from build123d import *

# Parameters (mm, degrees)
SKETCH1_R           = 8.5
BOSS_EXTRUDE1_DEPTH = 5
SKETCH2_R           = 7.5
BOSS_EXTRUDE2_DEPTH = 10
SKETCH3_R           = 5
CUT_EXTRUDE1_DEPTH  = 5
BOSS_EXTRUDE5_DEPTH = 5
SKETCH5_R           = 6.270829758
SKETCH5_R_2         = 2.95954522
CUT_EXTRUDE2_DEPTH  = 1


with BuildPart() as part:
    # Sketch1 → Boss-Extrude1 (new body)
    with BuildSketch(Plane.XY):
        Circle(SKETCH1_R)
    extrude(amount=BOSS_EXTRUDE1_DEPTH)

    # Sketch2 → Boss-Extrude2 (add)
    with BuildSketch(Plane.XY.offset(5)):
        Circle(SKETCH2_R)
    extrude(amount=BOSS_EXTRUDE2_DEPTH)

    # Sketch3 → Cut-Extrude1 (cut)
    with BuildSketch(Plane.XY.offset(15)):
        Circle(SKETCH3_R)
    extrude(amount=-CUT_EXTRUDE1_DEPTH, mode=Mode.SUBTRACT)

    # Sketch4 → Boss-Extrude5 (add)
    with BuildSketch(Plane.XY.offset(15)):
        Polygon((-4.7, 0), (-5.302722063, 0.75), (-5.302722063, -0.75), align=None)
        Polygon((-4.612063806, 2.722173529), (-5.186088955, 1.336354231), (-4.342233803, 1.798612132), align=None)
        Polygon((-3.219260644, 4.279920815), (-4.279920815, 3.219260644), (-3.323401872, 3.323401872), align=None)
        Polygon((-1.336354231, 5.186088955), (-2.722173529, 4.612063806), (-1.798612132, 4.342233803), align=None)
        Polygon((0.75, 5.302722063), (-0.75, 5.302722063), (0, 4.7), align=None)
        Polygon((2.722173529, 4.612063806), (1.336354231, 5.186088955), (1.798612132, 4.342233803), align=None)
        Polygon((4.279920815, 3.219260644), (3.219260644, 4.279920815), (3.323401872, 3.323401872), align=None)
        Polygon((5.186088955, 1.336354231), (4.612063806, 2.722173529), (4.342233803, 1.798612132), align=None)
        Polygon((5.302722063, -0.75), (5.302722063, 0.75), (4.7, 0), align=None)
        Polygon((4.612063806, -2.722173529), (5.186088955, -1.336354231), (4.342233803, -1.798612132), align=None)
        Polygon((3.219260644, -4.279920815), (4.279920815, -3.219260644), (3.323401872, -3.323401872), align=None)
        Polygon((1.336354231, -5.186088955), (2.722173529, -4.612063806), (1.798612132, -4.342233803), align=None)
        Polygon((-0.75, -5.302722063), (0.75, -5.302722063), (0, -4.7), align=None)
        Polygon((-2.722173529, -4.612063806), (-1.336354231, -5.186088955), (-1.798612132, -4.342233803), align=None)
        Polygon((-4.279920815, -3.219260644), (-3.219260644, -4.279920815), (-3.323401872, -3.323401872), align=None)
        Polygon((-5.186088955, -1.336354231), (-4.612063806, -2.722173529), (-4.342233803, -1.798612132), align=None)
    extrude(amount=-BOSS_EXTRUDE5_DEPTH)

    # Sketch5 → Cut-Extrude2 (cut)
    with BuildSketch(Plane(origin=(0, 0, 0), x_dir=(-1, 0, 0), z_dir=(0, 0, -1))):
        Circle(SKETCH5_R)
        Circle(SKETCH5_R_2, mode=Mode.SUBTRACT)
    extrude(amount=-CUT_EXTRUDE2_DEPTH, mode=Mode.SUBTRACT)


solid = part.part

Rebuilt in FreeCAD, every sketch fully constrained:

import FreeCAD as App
import Part
import Sketcher
Q = App.Units.Quantity

doc = App.newDocument("Part")
body = doc.addObject("PartDesign::Body", "Body")

# Sketch on XY plane
sketch1 = doc.addObject("Sketcher::SketchObject", "Sketch")
body.addObject(sketch1)
sketch1.AttachmentSupport = (doc.XY_Plane, [""])
sketch1.MapMode = "FlatFace"
sketch1.addGeometry(Part.Circle(App.Vector(0, 0, 0), App.Vector(0, 0, 1), 8), False)
sketch1.addConstraint([
    Sketcher.Constraint("Coincident", 0, 3, -1, 1),
    Sketcher.Constraint("Diameter", 0, 17.0),
])
pad1 = doc.addObject("PartDesign::Pad", "Pad")
body.addObject(pad1)
pad1.Profile = sketch1
pad1.Length = 5

# Sketch on XY plane
sketch2 = doc.addObject("Sketcher::SketchObject", "Sketch001")
body.addObject(sketch2)
sketch2.AttachmentSupport = (doc.XY_Plane, [""])
sketch2.MapMode = "FlatFace"
sketch2.AttachmentOffset = App.Placement(App.Vector(0, 0, 5), App.Rotation())
sketch2.addGeometry(Part.Circle(App.Vector(0, 0, 0), App.Vector(0, 0, 1), 8), False)
sketch2.addConstraint([
    Sketcher.Constraint("Coincident", 0, 3, -1, 1),
    Sketcher.Constraint("Diameter", 0, 15.0),
])
pad2 = doc.addObject("PartDesign::Pad", "Pad001")
body.addObject(pad2)
pad2.Profile = sketch2
pad2.Length = 10

# Sketch on XY plane
sketch3 = doc.addObject("Sketcher::SketchObject", "Sketch002")
body.addObject(sketch3)
sketch3.AttachmentSupport = (doc.XY_Plane, [""])
sketch3.MapMode = "FlatFace"
sketch3.AttachmentOffset = App.Placement(App.Vector(0, 0, 15), App.Rotation())
sketch3.addGeometry(Part.Circle(App.Vector(0, 0, 0), App.Vector(0, 0, 1), 5), False)
sketch3.addConstraint([
    Sketcher.Constraint("Coincident", 0, 3, -1, 1),
    Sketcher.Constraint("Diameter", 0, 10.0),
])
pocket1 = doc.addObject("PartDesign::Pocket", "Pocket")
body.addObject(pocket1)
pocket1.Profile = sketch3
pocket1.Length = 5

# Sketch on XY plane
sketch4 = doc.addObject("Sketcher::SketchObject", "Sketch003")
body.addObject(sketch4)
sketch4.AttachmentSupport = (doc.XY_Plane, [""])
sketch4.MapMode = "FlatFace"
sketch4.AttachmentOffset = App.Placement(App.Vector(0, 0, 15), App.Rotation())
sketch4.addGeometry([
    Part.LineSegment(App.Vector(-4.7, 0, 0), App.Vector(-5.3, 0.8, 0)),  # 0
    Part.LineSegment(App.Vector(-5.3, 0.8, 0), App.Vector(-5.3, -0.8, 0)),  # 1
    Part.LineSegment(App.Vector(-5.3, -0.8, 0), App.Vector(-4.7, 0, 0)),  # 2
    Part.LineSegment(App.Vector(-4.6, 2.7, 0), App.Vector(-5.2, 1.3, 0)),  # 3
    Part.LineSegment(App.Vector(-5.2, 1.3, 0), App.Vector(-4.3, 1.8, 0)),  # 4
    Part.LineSegment(App.Vector(-4.3, 1.8, 0), App.Vector(-4.6, 2.7, 0)),  # 5
    Part.LineSegment(App.Vector(-3.2, 4.3, 0), App.Vector(-4.3, 3.2, 0)),  # 6
    Part.LineSegment(App.Vector(-4.3, 3.2, 0), App.Vector(-3.3, 3.3, 0)),  # 7
    Part.LineSegment(App.Vector(-3.3, 3.3, 0), App.Vector(-3.2, 4.3, 0)),  # 8
    Part.LineSegment(App.Vector(-1.3, 5.2, 0), App.Vector(-2.7, 4.6, 0)),  # 9
    Part.LineSegment(App.Vector(-2.7, 4.6, 0), App.Vector(-1.8, 4.3, 0)),  # 10
    Part.LineSegment(App.Vector(-1.8, 4.3, 0), App.Vector(-1.3, 5.2, 0)),  # 11
    Part.LineSegment(App.Vector(0.8, 5.3, 0), App.Vector(-0.8, 5.3, 0)),  # 12
    Part.LineSegment(App.Vector(-0.8, 5.3, 0), App.Vector(0, 4.7, 0)),  # 13
    Part.LineSegment(App.Vector(0, 4.7, 0), App.Vector(0.8, 5.3, 0)),  # 14
    Part.LineSegment(App.Vector(2.7, 4.6, 0), App.Vector(1.3, 5.2, 0)),  # 15
    Part.LineSegment(App.Vector(1.3, 5.2, 0), App.Vector(1.8, 4.3, 0)),  # 16
    Part.LineSegment(App.Vector(1.8, 4.3, 0), App.Vector(2.7, 4.6, 0)),  # 17
    Part.LineSegment(App.Vector(4.3, 3.2, 0), App.Vector(3.2, 4.3, 0)),  # 18
    Part.LineSegment(App.Vector(3.2, 4.3, 0), App.Vector(3.3, 3.3, 0)),  # 19
    Part.LineSegment(App.Vector(3.3, 3.3, 0), App.Vector(4.3, 3.2, 0)),  # 20
    Part.LineSegment(App.Vector(5.2, 1.3, 0), App.Vector(4.6, 2.7, 0)),  # 21
    Part.LineSegment(App.Vector(4.6, 2.7, 0), App.Vector(4.3, 1.8, 0)),  # 22
    Part.LineSegment(App.Vector(4.3, 1.8, 0), App.Vector(5.2, 1.3, 0)),  # 23
    Part.LineSegment(App.Vector(5.3, -0.8, 0), App.Vector(5.3, 0.8, 0)),  # 24
    Part.LineSegment(App.Vector(5.3, 0.8, 0), App.Vector(4.7, 0, 0)),  # 25
    Part.LineSegment(App.Vector(4.7, 0, 0), App.Vector(5.3, -0.8, 0)),  # 26
    Part.LineSegment(App.Vector(4.6, -2.7, 0), App.Vector(5.2, -1.3, 0)),  # 27
    Part.LineSegment(App.Vector(5.2, -1.3, 0), App.Vector(4.3, -1.8, 0)),  # 28
    Part.LineSegment(App.Vector(4.3, -1.8, 0), App.Vector(4.6, -2.7, 0)),  # 29
    Part.LineSegment(App.Vector(3.2, -4.3, 0), App.Vector(4.3, -3.2, 0)),  # 30
    Part.LineSegment(App.Vector(4.3, -3.2, 0), App.Vector(3.3, -3.3, 0)),  # 31
    Part.LineSegment(App.Vector(3.3, -3.3, 0), App.Vector(3.2, -4.3, 0)),  # 32
    Part.LineSegment(App.Vector(1.3, -5.2, 0), App.Vector(2.7, -4.6, 0)),  # 33
    Part.LineSegment(App.Vector(2.7, -4.6, 0), App.Vector(1.8, -4.3, 0)),  # 34
    Part.LineSegment(App.Vector(1.8, -4.3, 0), App.Vector(1.3, -5.2, 0)),  # 35
    Part.LineSegment(App.Vector(-0.8, -5.3, 0), App.Vector(0.8, -5.3, 0)),  # 36
    Part.LineSegment(App.Vector(0.8, -5.3, 0), App.Vector(0, -4.7, 0)),  # 37
    Part.LineSegment(App.Vector(0, -4.7, 0), App.Vector(-0.8, -5.3, 0)),  # 38
    Part.LineSegment(App.Vector(-2.7, -4.6, 0), App.Vector(-1.3, -5.2, 0)),  # 39
    Part.LineSegment(App.Vector(-1.3, -5.2, 0), App.Vector(-1.8, -4.3, 0)),  # 40
    Part.LineSegment(App.Vector(-1.8, -4.3, 0), App.Vector(-2.7, -4.6, 0)),  # 41
    Part.LineSegment(App.Vector(-4.3, -3.2, 0), App.Vector(-3.2, -4.3, 0)),  # 42
    Part.LineSegment(App.Vector(-3.2, -4.3, 0), App.Vector(-3.3, -3.3, 0)),  # 43
    Part.LineSegment(App.Vector(-3.3, -3.3, 0), App.Vector(-4.3, -3.2, 0)),  # 44
    Part.LineSegment(App.Vector(-5.2, -1.3, 0), App.Vector(-4.6, -2.7, 0)),  # 45
    Part.LineSegment(App.Vector(-4.6, -2.7, 0), App.Vector(-4.3, -1.8, 0)),  # 46
    Part.LineSegment(App.Vector(-4.3, -1.8, 0), App.Vector(-5.2, -1.3, 0)),  # 47
], False)
sketch4.addConstraint([
    Sketcher.Constraint("Coincident", 0, 2, 1, 1),
    Sketcher.Constraint("Coincident", 1, 2, 2, 1),
    Sketcher.Constraint("Coincident", 2, 2, 0, 1),
    Sketcher.Constraint("Coincident", 3, 2, 4, 1),
    Sketcher.Constraint("Coincident", 4, 2, 5, 1),
    Sketcher.Constraint("Coincident", 5, 2, 3, 1),
    Sketcher.Constraint("Coincident", 6, 2, 7, 1),
    Sketcher.Constraint("Coincident", 7, 2, 8, 1),
    Sketcher.Constraint("Coincident", 8, 2, 6, 1),
    Sketcher.Constraint("Coincident", 9, 2, 10, 1),
    Sketcher.Constraint("Coincident", 10, 2, 11, 1),
    Sketcher.Constraint("Coincident", 11, 2, 9, 1),
    Sketcher.Constraint("Coincident", 12, 2, 13, 1),
    Sketcher.Constraint("Coincident", 13, 2, 14, 1),
    Sketcher.Constraint("Coincident", 14, 2, 12, 1),
    Sketcher.Constraint("Coincident", 15, 2, 16, 1),
    Sketcher.Constraint("Coincident", 16, 2, 17, 1),
    Sketcher.Constraint("Coincident", 17, 2, 15, 1),
    Sketcher.Constraint("Coincident", 18, 2, 19, 1),
    Sketcher.Constraint("Coincident", 19, 2, 20, 1),
    Sketcher.Constraint("Coincident", 20, 2, 18, 1),
    Sketcher.Constraint("Coincident", 21, 2, 22, 1),
    Sketcher.Constraint("Coincident", 22, 2, 23, 1),
    Sketcher.Constraint("Coincident", 23, 2, 21, 1),
    Sketcher.Constraint("Coincident", 24, 2, 25, 1),
    Sketcher.Constraint("Coincident", 25, 2, 26, 1),
    Sketcher.Constraint("Coincident", 26, 2, 24, 1),
    Sketcher.Constraint("Coincident", 27, 2, 28, 1),
    Sketcher.Constraint("Coincident", 28, 2, 29, 1),
    Sketcher.Constraint("Coincident", 29, 2, 27, 1),
    Sketcher.Constraint("Coincident", 30, 2, 31, 1),
    Sketcher.Constraint("Coincident", 31, 2, 32, 1),
    Sketcher.Constraint("Coincident", 32, 2, 30, 1),
    Sketcher.Constraint("Coincident", 33, 2, 34, 1),
    Sketcher.Constraint("Coincident", 34, 2, 35, 1),
    Sketcher.Constraint("Coincident", 35, 2, 33, 1),
    Sketcher.Constraint("Coincident", 36, 2, 37, 1),
    Sketcher.Constraint("Coincident", 37, 2, 38, 1),
    Sketcher.Constraint("Coincident", 38, 2, 36, 1),
    Sketcher.Constraint("Coincident", 39, 2, 40, 1),
    Sketcher.Constraint("Coincident", 40, 2, 41, 1),
    Sketcher.Constraint("Coincident", 41, 2, 39, 1),
    Sketcher.Constraint("Coincident", 42, 2, 43, 1),
    Sketcher.Constraint("Coincident", 43, 2, 44, 1),
    Sketcher.Constraint("Coincident", 44, 2, 42, 1),
    Sketcher.Constraint("Coincident", 45, 2, 46, 1),
    Sketcher.Constraint("Coincident", 46, 2, 47, 1),
    Sketcher.Constraint("Coincident", 47, 2, 45, 1),
    Sketcher.Constraint("Vertical", 1),
    Sketcher.Constraint("Horizontal", 12),
    Sketcher.Constraint("Vertical", 24),
    Sketcher.Constraint("Horizontal", 36),
    Sketcher.Constraint("Symmetric", 1, 2, 24, 2, -1, 1),
    Sketcher.Constraint("Symmetric", 2, 2, 25, 2, -1, 1),
    Sketcher.Constraint("Symmetric", 3, 2, 27, 2, -1, 1),
    Sketcher.Constraint("Symmetric", 4, 2, 28, 2, -1, 1),
    Sketcher.Constraint("Symmetric", 5, 2, 29, 2, -1, 1),
    Sketcher.Constraint("Symmetric", 6, 2, 30, 2, -1, 1),
    Sketcher.Constraint("Symmetric", 7, 2, 31, 2, -1, 1),
    Sketcher.Constraint("Symmetric", 8, 2, 32, 2, -1, 1),
    Sketcher.Constraint("Symmetric", 9, 2, 33, 2, -1, 1),
    Sketcher.Constraint("Symmetric", 10, 2, 34, 2, -1, 1),
    Sketcher.Constraint("Symmetric", 11, 2, 35, 2, -1, 1),
    Sketcher.Constraint("Symmetric", 12, 2, 36, 2, -1, 1),
    Sketcher.Constraint("Symmetric", 13, 2, 37, 2, -1, 1),
    Sketcher.Constraint("Symmetric", 15, 2, 39, 2, -1, 1),
    Sketcher.Constraint("Symmetric", 16, 2, 40, 2, -1, 1),
    Sketcher.Constraint("Symmetric", 17, 2, 41, 2, -1, 1),
    Sketcher.Constraint("Symmetric", 18, 2, 42, 2, -1, 1),
    Sketcher.Constraint("Symmetric", 19, 2, 43, 2, -1, 1),
    Sketcher.Constraint("Symmetric", 20, 2, 44, 2, -1, 1),
    Sketcher.Constraint("Symmetric", 21, 2, 45, 2, -1, 1),
    Sketcher.Constraint("Symmetric", 22, 2, 46, 2, -1, 1),
    Sketcher.Constraint("Symmetric", 23, 2, 47, 2, -1, 1),
    Sketcher.Constraint("Symmetric", 11, 2, 15, 2, -2),
    Sketcher.Constraint("Symmetric", 10, 2, 16, 2, -2),
    Sketcher.Constraint("Symmetric", 9, 2, 17, 2, -2),
    Sketcher.Constraint("Symmetric", 8, 2, 18, 2, -2),
    Sketcher.Constraint("Symmetric", 7, 2, 19, 2, -2),
    Sketcher.Constraint("Symmetric", 6, 2, 20, 2, -2),
    Sketcher.Constraint("Symmetric", 5, 2, 21, 2, -2),
    Sketcher.Constraint("Symmetric", 4, 2, 22, 2, -2),
    Sketcher.Constraint("Symmetric", 3, 2, 23, 2, -2),
    Sketcher.Constraint("PointOnObject", 2, 2, -1),
    Sketcher.Constraint("PointOnObject", 13, 2, -2),
    Sketcher.Constraint("Perpendicular", 2, 13),
    Sketcher.Constraint("Perpendicular", 0, 14),
    Sketcher.Constraint("Perpendicular", 3, 15),
    Sketcher.Constraint("Perpendicular", 4, 16),
    Sketcher.Constraint("Perpendicular", 5, 17),
    Sketcher.Constraint("Perpendicular", 6, 18),
    Sketcher.Constraint("Perpendicular", 7, 19),
    Sketcher.Constraint("Perpendicular", 14, 26),
    Sketcher.Constraint("Perpendicular", 26, 38),
    Sketcher.Constraint("Horizontal", 0, 2, 24, 2),
    Sketcher.Constraint("Equal", 36, 1),
    Sketcher.Constraint("Equal", 2, 4),
    Sketcher.Constraint("Equal", 4, 5),
    Sketcher.Constraint("Equal", 3, 6),
    Sketcher.Constraint("Equal", 5, 7),
    Sketcher.Constraint("Equal", 6, 9),
    Sketcher.Constraint("DistanceX", 12, 2, 12, 1, 1.5),
    Sketcher.Constraint("Angle", 3, Q("-112.5 deg")),
    Sketcher.Constraint("Distance", 3, 1.5),
    Sketcher.Constraint("DistanceX", 2, 2, -1, 1, 4.7),
    Sketcher.Constraint("DistanceY", -1, 1, 13, 2, 4.7),
    Sketcher.Constraint("DistanceX", 7, 2, -1, 1, 3.323402),
    Sketcher.Constraint("DistanceY", -1, 1, 7, 2, 3.323402),
    Sketcher.Constraint("DistanceX", 0, 2, 6, 2, 1.022801),
    Sketcher.Constraint("DistanceX", 3, 2, -1, 1, 5.186089),
    Sketcher.Constraint("DistanceY", -1, 1, 11, 2, 5.186089),
    Sketcher.Constraint("DistanceY", 4, 2, 6, 2, 1.420649),
    Sketcher.Constraint("DistanceX", 7, 2, 9, 2, 0.601228),
])
pad3 = doc.addObject("PartDesign::Pad", "Pad002")
body.addObject(pad3)
pad3.Profile = sketch4
pad3.Length = 5
pad3.Reversed = True

# Sketch on XY plane
sketch5 = doc.addObject("Sketcher::SketchObject", "Sketch004")
body.addObject(sketch5)
sketch5.AttachmentSupport = (doc.XY_Plane, [""])
sketch5.MapMode = "FlatFace"
sketch5.addGeometry([
    Part.Circle(App.Vector(0, 0, 0), App.Vector(0, 0, 1), 6.3),
    Part.Circle(App.Vector(0, 0, 0), App.Vector(0, 0, 1), 3),
], False)
sketch5.addConstraint([
    Sketcher.Constraint("Coincident", 0, 3, -1, 1),
    Sketcher.Constraint("Coincident", 1, 3, -1, 1),
    Sketcher.Constraint("Diameter", 0, 12.54166),
    Sketcher.Constraint("Diameter", 1, 5.91909),
])
pocket2 = doc.addObject("PartDesign::Pocket", "Pocket001")
body.addObject(pocket2)
pocket2.Profile = sketch5
pocket2.Length = 1
pocket2.Reversed = True

doc.recompute()
